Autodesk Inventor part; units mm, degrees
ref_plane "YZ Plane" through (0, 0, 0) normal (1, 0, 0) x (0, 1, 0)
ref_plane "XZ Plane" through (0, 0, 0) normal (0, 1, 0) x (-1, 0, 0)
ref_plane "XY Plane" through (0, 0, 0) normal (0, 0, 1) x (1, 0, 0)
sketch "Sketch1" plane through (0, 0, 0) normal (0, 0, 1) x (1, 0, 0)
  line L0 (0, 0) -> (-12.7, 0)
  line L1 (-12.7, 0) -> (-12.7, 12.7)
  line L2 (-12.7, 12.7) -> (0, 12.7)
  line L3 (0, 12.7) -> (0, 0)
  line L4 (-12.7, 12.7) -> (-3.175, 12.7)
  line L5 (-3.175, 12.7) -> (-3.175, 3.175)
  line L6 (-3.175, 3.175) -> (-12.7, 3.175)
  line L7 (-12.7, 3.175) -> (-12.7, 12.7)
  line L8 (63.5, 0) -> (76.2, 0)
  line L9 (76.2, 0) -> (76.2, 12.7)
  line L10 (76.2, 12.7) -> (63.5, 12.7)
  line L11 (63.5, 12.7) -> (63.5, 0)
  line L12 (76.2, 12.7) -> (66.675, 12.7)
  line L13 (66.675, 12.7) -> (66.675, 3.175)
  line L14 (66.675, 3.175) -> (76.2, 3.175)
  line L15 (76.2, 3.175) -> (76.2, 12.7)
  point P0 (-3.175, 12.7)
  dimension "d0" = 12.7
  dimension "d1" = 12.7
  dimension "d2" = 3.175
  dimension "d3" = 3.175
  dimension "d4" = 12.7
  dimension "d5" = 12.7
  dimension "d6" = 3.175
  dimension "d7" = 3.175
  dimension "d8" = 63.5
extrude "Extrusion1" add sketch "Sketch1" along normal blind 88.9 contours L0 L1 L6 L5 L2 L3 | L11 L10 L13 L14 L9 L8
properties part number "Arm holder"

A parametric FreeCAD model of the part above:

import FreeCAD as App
import Part
import Sketcher

V = App.Vector
Q = App.Units.Quantity


def add_polygon(sketch, points):
    """Adds a closed chain of lines whose ends are joined by coincident constraints."""
    first, n = sketch.GeometryCount, len(points)
    for a, b in zip(points, points[1:] + points[:1]):
        sketch.addGeometry(Part.LineSegment(App.Vector(*a, 0), App.Vector(*b, 0)), False)
    for i in range(n):
        sketch.addConstraint(Sketcher.Constraint("Coincident", first + i, 2, first + (i + 1) % n, 1))

doc = App.newDocument("Part")
body = doc.addObject("PartDesign::Body", "Body")
body.AllowCompound = True

sketch1 = body.newObject("Sketcher::SketchObject", "Sketch")
sketch1.AttachmentSupport = (doc.getObject("XY_Plane"), [""])
sketch1.MapMode = "FlatFace"
add_polygon(sketch1, [(-12.7, 0), (0, 0), (0, 12.7), (-3.175, 12.7), (-3.175, 3.175), (-12.7, 3.175)])
add_polygon(sketch1, [(63.5, 12.7), (63.5, 0), (76.2, 0), (76.2, 3.175), (66.675, 3.175), (66.675, 12.7)])
sketch1.addConstraint([
    Sketcher.Constraint("Horizontal", 0),
    Sketcher.Constraint("Vertical", 1),
    Sketcher.Constraint("Horizontal", 2),
    Sketcher.Constraint("Vertical", 3),
    Sketcher.Constraint("Horizontal", 4),
    Sketcher.Constraint("Vertical", 5),
    Sketcher.Constraint("Vertical", 6),
    Sketcher.Constraint("Horizontal", 7),
    Sketcher.Constraint("Vertical", 8),
    Sketcher.Constraint("Horizontal", 9),
    Sketcher.Constraint("Vertical", 10),
    Sketcher.Constraint("Horizontal", 11),
    Sketcher.Constraint("Coincident", 0, 2, -1, 1),
    Sketcher.Constraint("PointOnObject", 6, 2, -1),
    Sketcher.Constraint("Horizontal", 4, 2, 8, 2),
    Sketcher.Constraint("Horizontal", 2, 2, 10, 2),
    Sketcher.Constraint("Equal", 0, 7),
    Sketcher.Constraint("Equal", 4, 9),
    Sketcher.Constraint("Equal", 7, 1),
    Sketcher.Constraint("Equal", 9, 3),
    Sketcher.Constraint("DistanceX", 0, 1, 0, 2, Q("0.5 in")),
    Sketcher.Constraint("DistanceX", -1, 1, 6, 2, Q("2.5 in")),
    Sketcher.Constraint("DistanceX", 2, 2, 2, 1, Q("0.125 in")),
])
pad1 = body.newObject("PartDesign::Pad", "Pad")
pad1.Profile = sketch1
pad1.Length = Q("3.5 in")

doc.recompute()
